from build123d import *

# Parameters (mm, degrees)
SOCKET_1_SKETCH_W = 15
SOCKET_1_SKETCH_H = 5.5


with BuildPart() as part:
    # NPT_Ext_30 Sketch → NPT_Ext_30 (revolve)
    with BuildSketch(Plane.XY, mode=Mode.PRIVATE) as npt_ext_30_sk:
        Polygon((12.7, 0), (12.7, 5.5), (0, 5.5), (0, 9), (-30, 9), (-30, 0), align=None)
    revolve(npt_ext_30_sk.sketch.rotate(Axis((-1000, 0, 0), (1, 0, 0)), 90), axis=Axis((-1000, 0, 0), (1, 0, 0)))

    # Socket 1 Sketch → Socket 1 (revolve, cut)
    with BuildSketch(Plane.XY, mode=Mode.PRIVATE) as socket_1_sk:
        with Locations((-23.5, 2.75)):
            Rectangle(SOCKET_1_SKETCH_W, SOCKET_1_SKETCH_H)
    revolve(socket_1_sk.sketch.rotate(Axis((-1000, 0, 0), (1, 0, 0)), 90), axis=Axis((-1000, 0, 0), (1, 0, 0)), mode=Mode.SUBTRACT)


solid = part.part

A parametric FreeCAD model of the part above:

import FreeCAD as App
import Part
import Sketcher

V = App.Vector
Q = App.Units.Quantity


def add_polygon(sketch, points):
    """Adds a closed chain of lines whose ends are joined by coincident constraints."""
    first, n = sketch.GeometryCount, len(points)
    for a, b in zip(points, points[1:] + points[:1]):
        sketch.addGeometry(Part.LineSegment(App.Vector(*a, 0), App.Vector(*b, 0)), False)
    for i in range(n):
        sketch.addConstraint(Sketcher.Constraint("Coincident", first + i, 2, first + (i + 1) % n, 1))

doc = App.newDocument("Part")
body = doc.addObject("PartDesign::Body", "Body")

# Sketch on XY plane
sketch1 = body.newObject("Sketcher::SketchObject", "Sketch")
sketch1.AttachmentSupport = (doc.getObject("XY_Plane"), [""])
sketch1.MapMode = "FlatFace"
add_polygon(sketch1, [(12.7, 0), (12.7, 5.5), (0, 5.5), (0, 9), (-30, 9), (-30, 0)])  # lines 0-5
sketch1.addConstraint([
    Sketcher.Constraint("Vertical", 0),
    Sketcher.Constraint("Horizontal", 1),
    Sketcher.Constraint("Vertical", 2),
    Sketcher.Constraint("Horizontal", 3),
    Sketcher.Constraint("Vertical", 4),
    Sketcher.Constraint("Horizontal", 5),
    Sketcher.Constraint("PointOnObject", 1, 2, -2),
    Sketcher.Constraint("PointOnObject", 4, 2, -1),
    Sketcher.Constraint("DistanceX", 3, 2, 3, 1, Q("30 mm")),
    Sketcher.Constraint("DistanceY", 4, 2, 4, 1, Q("9 mm")),
    Sketcher.Constraint("DistanceX", 1, 2, 1, 1, Q("12.7 mm")),
    Sketcher.Constraint("DistanceY", 0, 1, 0, 2, Q("5.5 mm")),
])
revolution = body.newObject("PartDesign::Revolution", "Revolution")
revolution.Profile = sketch1
revolution.ReferenceAxis = (sketch1, ["H_Axis"])
revolution.Angle = 360

# Sketch on XY plane
sketch2 = body.newObject("Sketcher::SketchObject", "Sketch001")
sketch2.AttachmentSupport = (doc.getObject("XY_Plane"), [""])
sketch2.MapMode = "FlatFace"
add_polygon(sketch2, [(-31, 5.5), (-31, 0), (-16, 0), (-16, 5.5)])  # lines 0-3
sketch2.addConstraint([
    Sketcher.Constraint("Vertical", 0),
    Sketcher.Constraint("Horizontal", 1),
    Sketcher.Constraint("Vertical", 2),
    Sketcher.Constraint("Horizontal", 3),
    Sketcher.Constraint("PointOnObject", 0, 2, -1),
    Sketcher.Constraint("DistanceX", 1, 1, 1, 2, Q("15 mm")),
    Sketcher.Constraint("DistanceY", 0, 2, 0, 1, Q("5.5 mm")),
    Sketcher.Constraint("DistanceX", 0, 2, -1, 1, Q("31 mm")),
])
groove = body.newObject("PartDesign::Groove", "Groove")
groove.Profile = sketch2
groove.ReferenceAxis = (sketch2, ["H_Axis"])
groove.Angle = 360

doc.recompute()
